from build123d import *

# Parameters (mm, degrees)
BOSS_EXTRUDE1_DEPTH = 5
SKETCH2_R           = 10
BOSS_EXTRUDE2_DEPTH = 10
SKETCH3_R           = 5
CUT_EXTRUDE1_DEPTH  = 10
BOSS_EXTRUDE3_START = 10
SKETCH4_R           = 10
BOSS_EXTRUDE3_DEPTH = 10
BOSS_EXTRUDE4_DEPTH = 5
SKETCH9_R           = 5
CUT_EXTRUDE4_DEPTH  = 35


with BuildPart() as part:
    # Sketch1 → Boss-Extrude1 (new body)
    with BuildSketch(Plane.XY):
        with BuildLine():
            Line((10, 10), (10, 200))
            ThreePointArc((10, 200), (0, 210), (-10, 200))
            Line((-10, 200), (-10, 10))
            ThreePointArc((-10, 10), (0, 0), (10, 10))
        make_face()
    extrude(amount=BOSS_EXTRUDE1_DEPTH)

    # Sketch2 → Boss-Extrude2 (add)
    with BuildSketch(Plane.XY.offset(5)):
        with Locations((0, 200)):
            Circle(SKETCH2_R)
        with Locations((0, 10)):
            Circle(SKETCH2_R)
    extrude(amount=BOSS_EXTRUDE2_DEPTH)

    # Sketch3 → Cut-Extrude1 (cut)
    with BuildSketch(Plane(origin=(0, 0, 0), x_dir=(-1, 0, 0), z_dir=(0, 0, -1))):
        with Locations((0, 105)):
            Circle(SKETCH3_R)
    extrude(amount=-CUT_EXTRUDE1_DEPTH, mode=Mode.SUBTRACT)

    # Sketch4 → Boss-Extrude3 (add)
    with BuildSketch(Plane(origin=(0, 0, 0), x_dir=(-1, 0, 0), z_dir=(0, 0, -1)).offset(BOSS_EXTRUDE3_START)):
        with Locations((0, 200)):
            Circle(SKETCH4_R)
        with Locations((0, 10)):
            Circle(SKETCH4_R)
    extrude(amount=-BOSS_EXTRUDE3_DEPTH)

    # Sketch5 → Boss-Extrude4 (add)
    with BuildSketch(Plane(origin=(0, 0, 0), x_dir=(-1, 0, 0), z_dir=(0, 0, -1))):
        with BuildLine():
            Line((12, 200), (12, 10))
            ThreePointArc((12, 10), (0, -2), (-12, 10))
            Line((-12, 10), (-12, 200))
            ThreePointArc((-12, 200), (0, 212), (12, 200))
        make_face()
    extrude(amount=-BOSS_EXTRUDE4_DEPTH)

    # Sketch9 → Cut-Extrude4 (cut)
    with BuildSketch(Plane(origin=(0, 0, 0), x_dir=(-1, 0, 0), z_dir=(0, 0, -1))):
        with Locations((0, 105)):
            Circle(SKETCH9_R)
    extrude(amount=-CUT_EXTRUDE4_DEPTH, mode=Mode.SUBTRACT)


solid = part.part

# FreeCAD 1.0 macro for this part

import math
import FreeCAD as App
import Part
import Sketcher
Q = App.Units.Quantity

doc = App.newDocument("Part")
params = doc.addObject("Spreadsheet::Sheet", "Params")
for row, (alias, value) in enumerate([
    ("sketch1_radius", "10 mm"),
    ("sketch1_height", "190 mm"),
    ("pad1_length", "5 mm"),
    ("sketch2_diameter", "20 mm"),
    ("pad2_length", "10 mm"),
    ("sketch3_diameter", "10 mm"),
    ("pocket1_length", "10 mm"),
    ("sketch4_diameter", "20 mm"),
    ("pad3_length", "10 mm"),
    ("sketch5_radius", "12 mm"),
    ("sketch5_height", "190 mm"),
    ("pad4_length", "5 mm"),
    ("sketch6_diameter", "10 mm"),
    ("pocket2_length", "35 mm"),
], start=1):
    params.set(f"A{row}", alias)
    params.set(f"B{row}", "=" + value)
    params.setAlias(f"B{row}", alias)

body = doc.addObject("PartDesign::Body", "Body")

# Sketch on XY plane
sketch1 = body.newObject("Sketcher::SketchObject", "Sketch")
sketch1.AttachmentSupport = (doc.getObject("XY_Plane"), [""])
sketch1.MapMode = "FlatFace"
sketch1.addGeometry([
    Part.LineSegment(App.Vector(10, 10, 0), App.Vector(10, 200, 0)),
    Part.ArcOfCircle(Part.Circle(App.Vector(0, 200, 0), App.Vector(0, 0, 1), 10), math.radians(0), math.radians(180)),
    Part.LineSegment(App.Vector(-10, 200, 0), App.Vector(-10, 10, 0)),
    Part.ArcOfCircle(Part.Circle(App.Vector(0, 10, 0), App.Vector(0, 0, 1), 10), math.radians(180), math.radians(360)),
], False)
sketch1.addConstraint([
    Sketcher.Constraint("Tangent", 0, 2, 1, 1),
    Sketcher.Constraint("Tangent", 1, 2, 2, 1),
    Sketcher.Constraint("Tangent", 2, 2, 3, 1),
    Sketcher.Constraint("Tangent", 3, 2, 0, 1),
    Sketcher.Constraint("Vertical", 0),
    Sketcher.Constraint("Vertical", 2),
    Sketcher.Constraint("PointOnObject", 1, 3, -2),
    Sketcher.Constraint("Radius", 1, Q("10 mm")),
    Sketcher.Constraint("DistanceY", 0, 1, 0, 2, Q("190 mm")),
    Sketcher.Constraint("DistanceY", -1, 1, 1, 3, Q("200 mm")),
])
sketch1.setExpression("Constraints[7]", "Params.sketch1_radius")
sketch1.setExpression("Constraints[8]", "Params.sketch1_height")
pad1 = body.newObject("PartDesign::Pad", "Pad")
pad1.Profile = sketch1
pad1.setExpression("Length", "Params.pad1_length")

# Sketch on XY plane
sketch2 = body.newObject("Sketcher::SketchObject", "Sketch001")
sketch2.AttachmentSupport = (doc.getObject("XY_Plane"), [""])
sketch2.MapMode = "FlatFace"
sketch2.AttachmentOffset = App.Placement(App.Vector(0, 0, 5), App.Rotation())
sketch2.addGeometry([
    Part.Circle(App.Vector(0, 200, 0), App.Vector(0, 0, 1), 10),
    Part.Circle(App.Vector(0, 10, 0), App.Vector(0, 0, 1), 10),
], False)
sketch2.addConstraint([
    Sketcher.Constraint("Equal", 0, 1),
    Sketcher.Constraint("PointOnObject", 0, 3, -2),
    Sketcher.Constraint("PointOnObject", 1, 3, -2),
    Sketcher.Constraint("Diameter", 0, Q("20 mm")),
    Sketcher.Constraint("DistanceY", -1, 1, 0, 3, Q("200 mm")),
    Sketcher.Constraint("DistanceY", -1, 1, 1, 3, Q("10 mm")),
])
sketch2.setExpression("Constraints[3]", "Params.sketch2_diameter")
pad2 = body.newObject("PartDesign::Pad", "Pad001")
pad2.Profile = sketch2
pad2.setExpression("Length", "Params.pad2_length")

# Sketch on XY plane
sketch3 = body.newObject("Sketcher::SketchObject", "Sketch002")
sketch3.AttachmentSupport = (doc.getObject("XY_Plane"), [""])
sketch3.MapMode = "FlatFace"
sketch3.addGeometry(Part.Circle(App.Vector(0, 105, 0), App.Vector(0, 0, 1), 5), False)
sketch3.addConstraint([
    Sketcher.Constraint("PointOnObject", 0, 3, -2),
    Sketcher.Constraint("Diameter", 0, Q("10 mm")),
    Sketcher.Constraint("DistanceY", -1, 1, 0, 3, Q("105 mm")),
])
sketch3.setExpression("Constraints[1]", "Params.sketch3_diameter")
pocket1 = body.newObject("PartDesign::Pocket", "Pocket")
pocket1.Profile = sketch3
pocket1.setExpression("Length", "Params.pocket1_length")
pocket1.Reversed = True

# Sketch on XY plane
sketch4 = body.newObject("Sketcher::SketchObject", "Sketch003")
sketch4.AttachmentSupport = (doc.getObject("XY_Plane"), [""])
sketch4.MapMode = "FlatFace"
sketch4.AttachmentOffset = App.Placement(App.Vector(0, 0, -10), App.Rotation())
sketch4.addGeometry([
    Part.Circle(App.Vector(0, 200, 0), App.Vector(0, 0, 1), 10),
    Part.Circle(App.Vector(0, 10, 0), App.Vector(0, 0, 1), 10),
], False)
sketch4.addConstraint([
    Sketcher.Constraint("Equal", 0, 1),
    Sketcher.Constraint("PointOnObject", 0, 3, -2),
    Sketcher.Constraint("PointOnObject", 1, 3, -2),
    Sketcher.Constraint("Diameter", 0, Q("20 mm")),
    Sketcher.Constraint("DistanceY", -1, 1, 0, 3, Q("200 mm")),
    Sketcher.Constraint("DistanceY", -1, 1, 1, 3, Q("10 mm")),
])
sketch4.setExpression("Constraints[3]", "Params.sketch4_diameter")
pad3 = body.newObject("PartDesign::Pad", "Pad002")
pad3.Profile = sketch4
pad3.setExpression("Length", "Params.pad3_length")

# Sketch on XY plane
sketch5 = body.newObject("Sketcher::SketchObject", "Sketch004")
sketch5.AttachmentSupport = (doc.getObject("XY_Plane"), [""])
sketch5.MapMode = "FlatFace"
sketch5.addGeometry([
    Part.LineSegment(App.Vector(-12, 10, 0), App.Vector(-12, 200, 0)),
    Part.ArcOfCircle(Part.Circle(App.Vector(0, 200, 0), App.Vector(0, 0, 1), 12), math.radians(0), math.radians(180)),
    Part.LineSegment(App.Vector(12, 200, 0), App.Vector(12, 10, 0)),
    Part.ArcOfCircle(Part.Circle(App.Vector(0, 10, 0), App.Vector(0, 0, 1), 12), math.radians(180), math.radians(360)),
], False)
sketch5.addConstraint([
    Sketcher.Constraint("Tangent", 0, 2, 1, 2),
    Sketcher.Constraint("Tangent", 1, 1, 2, 1),
    Sketcher.Constraint("Tangent", 2, 2, 3, 2),
    Sketcher.Constraint("Tangent", 3, 1, 0, 1),
    Sketcher.Constraint("Vertical", 0),
    Sketcher.Constraint("Vertical", 2),
    Sketcher.Constraint("PointOnObject", 1, 3, -2),
    Sketcher.Constraint("Radius", 1, Q("12 mm")),
    Sketcher.Constraint("DistanceY", 0, 1, 0, 2, Q("190 mm")),
    Sketcher.Constraint("DistanceY", -1, 1, 1, 3, Q("200 mm")),
])
sketch5.setExpression("Constraints[7]", "Params.sketch5_radius")
sketch5.setExpression("Constraints[8]", "Params.sketch5_height")
pad4 = body.newObject("PartDesign::Pad", "Pad003")
pad4.Profile = sketch5
pad4.setExpression("Length", "Params.pad4_length")

# Sketch on XY plane
sketch6 = body.newObject("Sketcher::SketchObject", "Sketch005")
sketch6.AttachmentSupport = (doc.getObject("XY_Plane"), [""])
sketch6.MapMode = "FlatFace"
sketch6.addGeometry(Part.Circle(App.Vector(0, 105, 0), App.Vector(0, 0, 1), 5), False)
sketch6.addConstraint([
    Sketcher.Constraint("PointOnObject", 0, 3, -2),
    Sketcher.Constraint("Diameter", 0, Q("10 mm")),
    Sketcher.Constraint("DistanceY", -1, 1, 0, 3, Q("105 mm")),
])
sketch6.setExpression("Constraints[1]", "Params.sketch6_diameter")
pocket2 = body.newObject("PartDesign::Pocket", "Pocket001")
pocket2.Profile = sketch6
pocket2.setExpression("Length", "Params.pocket2_length")
pocket2.Reversed = True

doc.recompute()
